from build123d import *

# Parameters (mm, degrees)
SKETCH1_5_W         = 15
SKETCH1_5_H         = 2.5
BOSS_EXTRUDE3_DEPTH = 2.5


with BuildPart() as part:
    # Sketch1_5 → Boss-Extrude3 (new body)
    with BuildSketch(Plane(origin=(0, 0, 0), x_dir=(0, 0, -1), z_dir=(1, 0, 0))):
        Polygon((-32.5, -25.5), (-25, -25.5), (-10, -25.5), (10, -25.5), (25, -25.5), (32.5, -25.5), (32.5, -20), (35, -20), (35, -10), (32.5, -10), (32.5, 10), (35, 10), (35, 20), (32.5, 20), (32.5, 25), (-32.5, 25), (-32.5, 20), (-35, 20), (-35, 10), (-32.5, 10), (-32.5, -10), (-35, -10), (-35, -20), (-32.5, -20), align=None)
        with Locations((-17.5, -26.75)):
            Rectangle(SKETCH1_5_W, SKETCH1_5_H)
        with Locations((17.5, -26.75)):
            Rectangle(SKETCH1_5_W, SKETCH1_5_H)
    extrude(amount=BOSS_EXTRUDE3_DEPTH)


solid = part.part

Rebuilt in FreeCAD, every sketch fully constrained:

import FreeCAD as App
import Part
import Sketcher
from FreeCAD import Vector


def add_polygon(sketch, points):
    """Adds a closed chain of lines whose ends are joined by coincident constraints."""
    first, n = sketch.GeometryCount, len(points)
    for a, b in zip(points, points[1:] + points[:1]):
        sketch.addGeometry(Part.LineSegment(App.Vector(*a, 0), App.Vector(*b, 0)), False)
    for i in range(n):
        sketch.addConstraint(Sketcher.Constraint("Coincident", first + i, 2, first + (i + 1) % n, 1))

doc = App.newDocument("Part")
body = doc.addObject("PartDesign::Body", "Body")

# Sketch on YZ plane
sketch1 = doc.addObject("Sketcher::SketchObject", "Sketch")
body.addObject(sketch1)
sketch1.AttachmentSupport = (doc.YZ_Plane, [""])
sketch1.MapMode = "FlatFace"
add_polygon(sketch1, [(-25.5, 32.5), (-25.5, 25), (-28, 25), (-28, 10), (-25.5, 10), (-25.5, -10), (-28, -10), (-28, -25), (-25.5, -25), (-25.5, -32.5), (-20, -32.5), (-20, -35), (-10, -35), (-10, -32.5), (10, -32.5), (10, -35), (20, -35), (20, -32.5), (25, -32.5), (25, 32.5), (20, 32.5), (20, 35), (10, 35), (10, 32.5), (-10, 32.5), (-10, 35), (-20, 35), (-20, 32.5)])  # lines 0-27
sketch1.addConstraint([
    Sketcher.Constraint("Vertical", 0),
    Sketcher.Constraint("Horizontal", 1),
    Sketcher.Constraint("Vertical", 2),
    Sketcher.Constraint("Horizontal", 3),
    Sketcher.Constraint("Vertical", 4),
    Sketcher.Constraint("Horizontal", 5),
    Sketcher.Constraint("Vertical", 6),
    Sketcher.Constraint("Horizontal", 7),
    Sketcher.Constraint("Vertical", 8),
    Sketcher.Constraint("Horizontal", 9),
    Sketcher.Constraint("Vertical", 10),
    Sketcher.Constraint("Horizontal", 11),
    Sketcher.Constraint("Vertical", 12),
    Sketcher.Constraint("Horizontal", 13),
    Sketcher.Constraint("Vertical", 14),
    Sketcher.Constraint("Horizontal", 15),
    Sketcher.Constraint("Vertical", 16),
    Sketcher.Constraint("Horizontal", 17),
    Sketcher.Constraint("Vertical", 18),
    Sketcher.Constraint("Horizontal", 19),
    Sketcher.Constraint("Vertical", 20),
    Sketcher.Constraint("Horizontal", 21),
    Sketcher.Constraint("Vertical", 22),
    Sketcher.Constraint("Horizontal", 23),
    Sketcher.Constraint("Vertical", 24),
    Sketcher.Constraint("Horizontal", 25),
    Sketcher.Constraint("Vertical", 26),
    Sketcher.Constraint("Horizontal", 27),
    Sketcher.Constraint("Symmetric", 9, 2, 19, 2, -1, 1),
    Sketcher.Constraint("Symmetric", 11, 2, 21, 2, -1, 1),
    Sketcher.Constraint("Symmetric", 13, 2, 23, 2, -1, 1),
    Sketcher.Constraint("Symmetric", 15, 2, 25, 2, -1, 1),
    Sketcher.Constraint("Symmetric", 11, 2, 14, 2, -2),
    Sketcher.Constraint("Symmetric", 9, 2, 16, 2, -2),
    Sketcher.Constraint("Symmetric", 2, 2, 5, 2, -1),
    Sketcher.Constraint("Symmetric", 0, 2, 7, 2, -1),
    Sketcher.Constraint("Horizontal", 9, 2, 12, 2),
    Sketcher.Constraint("Horizontal", 23, 2, 26, 2),
    Sketcher.Constraint("Vertical", 0, 2, 3, 2),
    Sketcher.Constraint("Equal", 23, 4),
    Sketcher.Constraint("Equal", 7, 10),
    Sketcher.Constraint("DistanceX", 11, 1, 11, 2, 10.0),
    Sketcher.Constraint("DistanceX", 13, 1, 13, 2, 20.0),
    Sketcher.Constraint("DistanceX", 17, 1, 17, 2, 5.0),
    Sketcher.Constraint("DistanceY", 2, 2, 2, 1, 15.0),
    Sketcher.Constraint("DistanceY", 18, 1, 18, 2, 65.0),
    Sketcher.Constraint("DistanceX", 1, 2, 1, 1, 2.5),
    Sketcher.Constraint("DistanceX", 9, 1, 9, 2, 5.5),
])
pad1 = doc.addObject("PartDesign::Pad", "Pad")
body.addObject(pad1)
pad1.Profile = sketch1
pad1.Length = 2.5

doc.recompute()
